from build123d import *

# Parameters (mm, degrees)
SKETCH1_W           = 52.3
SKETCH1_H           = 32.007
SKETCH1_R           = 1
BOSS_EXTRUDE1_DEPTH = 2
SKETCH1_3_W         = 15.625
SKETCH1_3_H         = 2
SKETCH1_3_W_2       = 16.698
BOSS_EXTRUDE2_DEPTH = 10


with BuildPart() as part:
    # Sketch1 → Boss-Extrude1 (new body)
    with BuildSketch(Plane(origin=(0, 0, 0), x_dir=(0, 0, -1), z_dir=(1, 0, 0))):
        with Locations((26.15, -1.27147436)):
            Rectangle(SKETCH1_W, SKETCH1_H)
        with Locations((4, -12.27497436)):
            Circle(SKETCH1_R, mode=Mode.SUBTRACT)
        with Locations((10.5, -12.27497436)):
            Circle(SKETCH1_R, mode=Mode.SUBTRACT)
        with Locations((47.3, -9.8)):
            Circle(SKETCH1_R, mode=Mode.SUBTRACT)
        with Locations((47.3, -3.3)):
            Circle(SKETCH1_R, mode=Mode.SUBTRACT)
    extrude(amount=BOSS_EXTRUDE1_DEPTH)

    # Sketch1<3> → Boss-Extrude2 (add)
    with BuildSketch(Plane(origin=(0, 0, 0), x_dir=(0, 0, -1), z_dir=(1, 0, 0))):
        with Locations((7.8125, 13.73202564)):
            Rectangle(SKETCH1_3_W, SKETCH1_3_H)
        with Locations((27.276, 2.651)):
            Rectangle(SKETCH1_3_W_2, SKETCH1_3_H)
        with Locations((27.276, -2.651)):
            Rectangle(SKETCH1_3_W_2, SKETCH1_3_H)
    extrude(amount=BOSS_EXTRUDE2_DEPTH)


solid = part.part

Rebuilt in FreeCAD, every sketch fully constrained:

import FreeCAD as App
import Part
import Sketcher
Q = App.Units.Quantity

doc = App.newDocument("Part")
params = doc.addObject("Spreadsheet::Sheet", "Params")
for row, (alias, value) in enumerate([
    ("sketch1_diameter", "2 mm"),
    ("sketch1_height", "52.3 mm"),
    ("pad1_length", "2 mm"),
    ("sketch2_width", "2 mm"),
    ("pad2_length", "10 mm"),
], start=1):
    params.set(f"A{row}", alias)
    params.set(f"B{row}", "=" + value)
    params.setAlias(f"B{row}", alias)

body = doc.addObject("PartDesign::Body", "Body")

# Sketch on YZ plane
sketch1 = body.newObject("Sketcher::SketchObject", "Sketch")
sketch1.AttachmentSupport = (doc.getObject("YZ_Plane"), [""])
sketch1.MapMode = "FlatFace"
sketch1.addGeometry([
    Part.LineSegment(App.Vector(14.7, 0, 0), App.Vector(-17.3, 0, 0)),  # 0
    Part.LineSegment(App.Vector(-17.3, 0, 0), App.Vector(-17.3, -52.3, 0)),  # 1
    Part.LineSegment(App.Vector(-17.3, -52.3, 0), App.Vector(14.7, -52.3, 0)),  # 2
    Part.LineSegment(App.Vector(14.7, -52.3, 0), App.Vector(14.7, 0, 0)),  # 3
    Part.Circle(App.Vector(-12.3, -4, 0), App.Vector(0, 0, 1), 1),  # 4
    Part.Circle(App.Vector(-12.3, -10.5, 0), App.Vector(0, 0, 1), 1),  # 5
    Part.Circle(App.Vector(-9.8, -47.3, 0), App.Vector(0, 0, 1), 1),  # 6
    Part.Circle(App.Vector(-3.3, -47.3, 0), App.Vector(0, 0, 1), 1),  # 7
], False)
sketch1.addConstraint([
    Sketcher.Constraint("Coincident", 0, 2, 1, 1),
    Sketcher.Constraint("Coincident", 1, 2, 2, 1),
    Sketcher.Constraint("Coincident", 2, 2, 3, 1),
    Sketcher.Constraint("Coincident", 3, 2, 0, 1),
    Sketcher.Constraint("Horizontal", 0),
    Sketcher.Constraint("Vertical", 1),
    Sketcher.Constraint("Horizontal", 2),
    Sketcher.Constraint("Vertical", 3),
    Sketcher.Constraint("Equal", 4, 5),
    Sketcher.Constraint("Equal", 5, 6),
    Sketcher.Constraint("Equal", 6, 7),
    Sketcher.Constraint("PointOnObject", 0, 2, -1),
    Sketcher.Constraint("Horizontal", 6, 3, 7, 3),
    Sketcher.Constraint("Vertical", 4, 3, 5, 3),
    Sketcher.Constraint("Diameter", 4, Q("2 mm")),
    Sketcher.Constraint("DistanceY", 1, 2, 1, 1, Q("52.3 mm")),
    Sketcher.Constraint("DistanceY", 4, 3, -1, 1, Q("4 mm")),
    Sketcher.Constraint("DistanceX", 0, 2, 4, 3, Q("5 mm")),
    Sketcher.Constraint("DistanceY", 1, 2, 6, 3, Q("5 mm")),
    Sketcher.Constraint("DistanceY", 5, 3, -1, 1, Q("10.5 mm")),
    Sketcher.Constraint("DistanceX", 6, 3, -1, 1, Q("9.8 mm")),
    Sketcher.Constraint("DistanceX", 7, 3, -1, 1, Q("3.3 mm")),
    Sketcher.Constraint("DistanceX", 0, 2, 0, 1, Q("32.007 mm")),
    Sketcher.Constraint("DistanceX", 4, 3, -1, 1, Q("12.274974 mm")),
])
sketch1.setExpression("Constraints[14]", "Params.sketch1_diameter")
sketch1.setExpression("Constraints[15]", "Params.sketch1_height")
pad1 = body.newObject("PartDesign::Pad", "Pad")
pad1.Profile = sketch1
pad1.setExpression("Length", "Params.pad1_length")

# Sketch on YZ plane
sketch2 = body.newObject("Sketcher::SketchObject", "Sketch001")
sketch2.AttachmentSupport = (doc.getObject("YZ_Plane"), [""])
sketch2.MapMode = "FlatFace"
sketch2.addGeometry([
    Part.LineSegment(App.Vector(14.7, 0, 0), App.Vector(12.7, 0, 0)),  # 0
    Part.LineSegment(App.Vector(12.7, 0, 0), App.Vector(12.7, -15.6, 0)),  # 1
    Part.LineSegment(App.Vector(12.7, -15.6, 0), App.Vector(14.7, -15.6, 0)),  # 2
    Part.LineSegment(App.Vector(14.7, -15.6, 0), App.Vector(14.7, 0, 0)),  # 3
    Part.LineSegment(App.Vector(3.7, -18.9, 0), App.Vector(1.7, -18.9, 0)),  # 4
    Part.LineSegment(App.Vector(1.7, -18.9, 0), App.Vector(1.7, -35.6, 0)),  # 5
    Part.LineSegment(App.Vector(1.7, -35.6, 0), App.Vector(3.7, -35.6, 0)),  # 6
    Part.LineSegment(App.Vector(3.7, -35.6, 0), App.Vector(3.7, -18.9, 0)),  # 7
    Part.LineSegment(App.Vector(-1.7, -18.9, 0), App.Vector(-3.7, -18.9, 0)),  # 8
    Part.LineSegment(App.Vector(-3.7, -18.9, 0), App.Vector(-3.7, -35.6, 0)),  # 9
    Part.LineSegment(App.Vector(-3.7, -35.6, 0), App.Vector(-1.7, -35.6, 0)),  # 10
    Part.LineSegment(App.Vector(-1.7, -35.6, 0), App.Vector(-1.7, -18.9, 0)),  # 11
], False)
sketch2.addConstraint([
    Sketcher.Constraint("Coincident", 0, 2, 1, 1),
    Sketcher.Constraint("Coincident", 1, 2, 2, 1),
    Sketcher.Constraint("Coincident", 2, 2, 3, 1),
    Sketcher.Constraint("Coincident", 3, 2, 0, 1),
    Sketcher.Constraint("Coincident", 4, 2, 5, 1),
    Sketcher.Constraint("Coincident", 5, 2, 6, 1),
    Sketcher.Constraint("Coincident", 6, 2, 7, 1),
    Sketcher.Constraint("Coincident", 7, 2, 4, 1),
    Sketcher.Constraint("Coincident", 8, 2, 9, 1),
    Sketcher.Constraint("Coincident", 9, 2, 10, 1),
    Sketcher.Constraint("Coincident", 10, 2, 11, 1),
    Sketcher.Constraint("Coincident", 11, 2, 8, 1),
    Sketcher.Constraint("Horizontal", 0),
    Sketcher.Constraint("Vertical", 1),
    Sketcher.Constraint("Horizontal", 2),
    Sketcher.Constraint("Vertical", 3),
    Sketcher.Constraint("Horizontal", 4),
    Sketcher.Constraint("Vertical", 5),
    Sketcher.Constraint("Horizontal", 6),
    Sketcher.Constraint("Vertical", 7),
    Sketcher.Constraint("Horizontal", 8),
    Sketcher.Constraint("Vertical", 9),
    Sketcher.Constraint("Horizontal", 10),
    Sketcher.Constraint("Vertical", 11),
    Sketcher.Constraint("Symmetric", 7, 2, 8, 2, -2),
    Sketcher.Constraint("Symmetric", 5, 2, 10, 2, -2),
    Sketcher.Constraint("PointOnObject", 0, 2, -1),
    Sketcher.Constraint("Equal", 2, 4),
    Sketcher.Constraint("DistanceX", 0, 2, 0, 1, Q("2 mm")),
    Sketcher.Constraint("DistanceY", 5, 2, 1, 2, Q("20 mm")),
    Sketcher.Constraint("DistanceY", 1, 2, 1, 1, Q("15.625 mm")),
    Sketcher.Constraint("DistanceY", 5, 2, 5, 1, Q("16.698 mm")),
    Sketcher.Constraint("DistanceX", -1, 1, 4, 2, Q("1.651 mm")),
    Sketcher.Constraint("DistanceX", -1, 1, 0, 2, Q("12.732026 mm")),
])
sketch2.setExpression("Constraints[28]", "Params.sketch2_width")
pad2 = body.newObject("PartDesign::Pad", "Pad001")
pad2.Profile = sketch2
pad2.setExpression("Length", "Params.pad2_length")

doc.recompute()
